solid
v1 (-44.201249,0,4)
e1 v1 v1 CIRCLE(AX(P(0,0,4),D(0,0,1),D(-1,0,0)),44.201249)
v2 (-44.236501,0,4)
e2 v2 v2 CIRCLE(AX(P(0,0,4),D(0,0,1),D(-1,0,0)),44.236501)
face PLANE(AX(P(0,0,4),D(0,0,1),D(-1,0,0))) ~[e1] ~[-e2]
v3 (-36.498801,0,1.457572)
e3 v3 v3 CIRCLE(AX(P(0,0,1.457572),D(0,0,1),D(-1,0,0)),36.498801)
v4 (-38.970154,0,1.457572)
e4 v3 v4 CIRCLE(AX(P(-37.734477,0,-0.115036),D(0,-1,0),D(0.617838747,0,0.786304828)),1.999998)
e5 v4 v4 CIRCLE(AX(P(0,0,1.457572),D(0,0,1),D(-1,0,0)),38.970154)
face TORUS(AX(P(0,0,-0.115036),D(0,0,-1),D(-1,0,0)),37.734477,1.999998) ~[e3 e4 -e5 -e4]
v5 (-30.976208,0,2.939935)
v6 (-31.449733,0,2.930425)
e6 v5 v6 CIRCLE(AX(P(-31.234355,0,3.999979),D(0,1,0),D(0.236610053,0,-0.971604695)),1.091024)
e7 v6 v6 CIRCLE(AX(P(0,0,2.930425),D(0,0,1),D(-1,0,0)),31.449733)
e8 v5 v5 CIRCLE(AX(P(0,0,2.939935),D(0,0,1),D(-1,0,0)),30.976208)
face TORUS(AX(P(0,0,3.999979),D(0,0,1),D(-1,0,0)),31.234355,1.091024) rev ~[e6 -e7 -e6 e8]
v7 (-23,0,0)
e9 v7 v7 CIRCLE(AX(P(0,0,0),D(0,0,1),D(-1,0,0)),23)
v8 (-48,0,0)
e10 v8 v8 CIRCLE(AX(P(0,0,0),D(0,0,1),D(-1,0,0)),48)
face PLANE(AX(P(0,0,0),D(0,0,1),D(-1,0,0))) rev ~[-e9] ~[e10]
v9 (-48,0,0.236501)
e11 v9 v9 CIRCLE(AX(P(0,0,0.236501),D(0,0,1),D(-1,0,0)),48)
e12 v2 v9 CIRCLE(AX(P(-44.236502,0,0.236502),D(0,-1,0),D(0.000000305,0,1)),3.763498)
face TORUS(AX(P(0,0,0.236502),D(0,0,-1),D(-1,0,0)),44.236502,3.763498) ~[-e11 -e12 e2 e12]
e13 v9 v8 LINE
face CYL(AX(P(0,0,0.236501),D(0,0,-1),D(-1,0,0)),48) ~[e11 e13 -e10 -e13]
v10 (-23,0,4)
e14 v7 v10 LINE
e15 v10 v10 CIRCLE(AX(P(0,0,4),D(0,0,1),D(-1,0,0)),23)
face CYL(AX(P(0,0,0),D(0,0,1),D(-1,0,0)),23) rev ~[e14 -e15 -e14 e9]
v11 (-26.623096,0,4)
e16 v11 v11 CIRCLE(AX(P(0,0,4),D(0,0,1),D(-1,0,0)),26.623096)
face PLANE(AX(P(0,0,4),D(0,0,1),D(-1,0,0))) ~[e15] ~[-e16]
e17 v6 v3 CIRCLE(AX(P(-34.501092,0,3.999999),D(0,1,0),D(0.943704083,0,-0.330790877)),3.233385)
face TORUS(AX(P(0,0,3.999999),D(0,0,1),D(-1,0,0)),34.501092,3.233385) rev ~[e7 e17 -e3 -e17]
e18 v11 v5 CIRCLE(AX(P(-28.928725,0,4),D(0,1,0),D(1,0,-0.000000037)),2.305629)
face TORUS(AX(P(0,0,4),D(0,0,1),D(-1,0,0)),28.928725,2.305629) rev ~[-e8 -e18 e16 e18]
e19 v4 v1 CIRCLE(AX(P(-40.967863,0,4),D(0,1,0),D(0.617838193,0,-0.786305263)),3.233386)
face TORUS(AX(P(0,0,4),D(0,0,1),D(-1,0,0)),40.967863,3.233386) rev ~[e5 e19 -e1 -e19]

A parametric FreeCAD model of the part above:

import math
import FreeCAD as App
import Part
import Sketcher
from FreeCAD import Vector

doc = App.newDocument("Part")
body = doc.addObject("PartDesign::Body", "Body")

sketch1 = doc.addObject("Sketcher::SketchObject", "Sketch")
body.addObject(sketch1)
sketch1.AttachmentSupport = (doc.XZ_Plane, [""])
sketch1.MapMode = "FlatFace"
sketch1.addGeometry(Part.LineSegment(Vector(-48, 0, 0), Vector(-23, 0, 0)), False)
sketch1.addGeometry(Part.LineSegment(Vector(-23, 0, 0), Vector(-23, 4, 0)), False)
sketch1.addGeometry(Part.LineSegment(Vector(-23, 4, 0), Vector(-26.623, 4, 0)), False)
sketch1.addGeometry(Part.ArcOfCircle(Part.Circle(Vector(-28.929, 4, 0), Vector(0, 0, 1), 2.306), math.radians(-153), math.radians(0)), False)
sketch1.addGeometry(Part.ArcOfCircle(Part.Circle(Vector(-31.234, 4, 0), Vector(0, 0, 1), 1.091), math.radians(-101), math.radians(-76)), False)
sketch1.addGeometry(Part.ArcOfCircle(Part.Circle(Vector(-34.501, 4, 0), Vector(0, 0, 1), 3.233), math.radians(-128), math.radians(-19)), False)
sketch1.addGeometry(Part.ArcOfCircle(Part.Circle(Vector(-37.734, -0.115, 0), Vector(0, 0, 1), 2), math.radians(52), math.radians(128)), False)
sketch1.addGeometry(Part.ArcOfCircle(Part.Circle(Vector(-40.968, 4, 0), Vector(0, 0, 1), 3.233), math.radians(-180), math.radians(-52)), False)
sketch1.addGeometry(Part.LineSegment(Vector(-44.201, 4, 0), Vector(-44.237, 4, 0)), False)
sketch1.addGeometry(Part.ArcOfCircle(Part.Circle(Vector(-44.237, 0.237, 0), Vector(0, 0, 1), 3.763), math.radians(90), math.radians(180)), False)
sketch1.addGeometry(Part.LineSegment(Vector(-48, 0.237, 0), Vector(-48, 0, 0)), False)
sketch1.addConstraint(Sketcher.Constraint("Coincident", 0, 2, 1, 1))
sketch1.addConstraint(Sketcher.Constraint("Coincident", 1, 2, 2, 1))
sketch1.addConstraint(Sketcher.Constraint("Coincident", 2, 2, 3, 2))
sketch1.addConstraint(Sketcher.Constraint("Coincident", 3, 1, 4, 2))
sketch1.addConstraint(Sketcher.Constraint("Coincident", 4, 1, 5, 2))
sketch1.addConstraint(Sketcher.Constraint("Tangent", 5, 1, 6, 1))
sketch1.addConstraint(Sketcher.Constraint("Tangent", 6, 2, 7, 2))
sketch1.addConstraint(Sketcher.Constraint("Coincident", 7, 1, 8, 1))
sketch1.addConstraint(Sketcher.Constraint("Tangent", 8, 2, 9, 1))
sketch1.addConstraint(Sketcher.Constraint("Tangent", 9, 2, 10, 1))
sketch1.addConstraint(Sketcher.Constraint("Coincident", 10, 2, 0, 1))
sketch1.addConstraint(Sketcher.Constraint("Horizontal", 0))
sketch1.addConstraint(Sketcher.Constraint("Vertical", 1))
sketch1.addConstraint(Sketcher.Constraint("Horizontal", 2))
sketch1.addConstraint(Sketcher.Constraint("Horizontal", 8))
sketch1.addConstraint(Sketcher.Constraint("Vertical", 10))
sketch1.addConstraint(Sketcher.Constraint("Equal", 5, 7))
sketch1.addConstraint(Sketcher.Constraint("PointOnObject", 0, 2, -1))
sketch1.addConstraint(Sketcher.Constraint("Horizontal", 3, 3, 5, 3))
sketch1.addConstraint(Sketcher.Constraint("Horizontal", 5, 3, 7, 3))
sketch1.addConstraint(Sketcher.Constraint("Horizontal", 7, 3, 1, 2))
sketch1.addConstraint(Sketcher.Constraint("Horizontal", 2, 2, 7, 1))
sketch1.addConstraint(Sketcher.Constraint("Radius", 6, 1.999998))
sketch1.addConstraint(Sketcher.Constraint("DistanceX", 0, 1, 0, 2, 25.0))
sketch1.addConstraint(Sketcher.Constraint("DistanceY", 1, 1, 1, 2, 4.0))
sketch1.addConstraint(Sketcher.Constraint("DistanceX", 0, 2, -1, 1, 23.0))
sketch1.addConstraint(Sketcher.Constraint("Radius", 3, 2.305629))
sketch1.addConstraint(Sketcher.Constraint("DistanceY", 10, 2, 10, 1, 0.236501))
sketch1.addConstraint(Sketcher.Constraint("Radius", 4, 1.091024))
sketch1.addConstraint(Sketcher.Constraint("Radius", 5, 3.233385))
sketch1.addConstraint(Sketcher.Constraint("DistanceX", 8, 2, 8, 1, 0.035252))
sketch1.addConstraint(Sketcher.Constraint("DistanceX", 5, 1, -1, 1, 36.498801))
sketch1.addConstraint(Sketcher.Constraint("DistanceX", 2, 2, 2, 1, 3.623096))
sketch1.addConstraint(Sketcher.Constraint("DistanceY", -1, 1, 4, 3, 3.999979))
sketch1.addConstraint(Sketcher.Constraint("DistanceX", 4, 3, 3, 3, 2.30563))
revolution = doc.addObject("PartDesign::Revolution", "Revolution")
body.addObject(revolution)
revolution.Profile = sketch1
revolution.ReferenceAxis = (sketch1, ["V_Axis"])
revolution.Angle = 360

doc.recompute()
